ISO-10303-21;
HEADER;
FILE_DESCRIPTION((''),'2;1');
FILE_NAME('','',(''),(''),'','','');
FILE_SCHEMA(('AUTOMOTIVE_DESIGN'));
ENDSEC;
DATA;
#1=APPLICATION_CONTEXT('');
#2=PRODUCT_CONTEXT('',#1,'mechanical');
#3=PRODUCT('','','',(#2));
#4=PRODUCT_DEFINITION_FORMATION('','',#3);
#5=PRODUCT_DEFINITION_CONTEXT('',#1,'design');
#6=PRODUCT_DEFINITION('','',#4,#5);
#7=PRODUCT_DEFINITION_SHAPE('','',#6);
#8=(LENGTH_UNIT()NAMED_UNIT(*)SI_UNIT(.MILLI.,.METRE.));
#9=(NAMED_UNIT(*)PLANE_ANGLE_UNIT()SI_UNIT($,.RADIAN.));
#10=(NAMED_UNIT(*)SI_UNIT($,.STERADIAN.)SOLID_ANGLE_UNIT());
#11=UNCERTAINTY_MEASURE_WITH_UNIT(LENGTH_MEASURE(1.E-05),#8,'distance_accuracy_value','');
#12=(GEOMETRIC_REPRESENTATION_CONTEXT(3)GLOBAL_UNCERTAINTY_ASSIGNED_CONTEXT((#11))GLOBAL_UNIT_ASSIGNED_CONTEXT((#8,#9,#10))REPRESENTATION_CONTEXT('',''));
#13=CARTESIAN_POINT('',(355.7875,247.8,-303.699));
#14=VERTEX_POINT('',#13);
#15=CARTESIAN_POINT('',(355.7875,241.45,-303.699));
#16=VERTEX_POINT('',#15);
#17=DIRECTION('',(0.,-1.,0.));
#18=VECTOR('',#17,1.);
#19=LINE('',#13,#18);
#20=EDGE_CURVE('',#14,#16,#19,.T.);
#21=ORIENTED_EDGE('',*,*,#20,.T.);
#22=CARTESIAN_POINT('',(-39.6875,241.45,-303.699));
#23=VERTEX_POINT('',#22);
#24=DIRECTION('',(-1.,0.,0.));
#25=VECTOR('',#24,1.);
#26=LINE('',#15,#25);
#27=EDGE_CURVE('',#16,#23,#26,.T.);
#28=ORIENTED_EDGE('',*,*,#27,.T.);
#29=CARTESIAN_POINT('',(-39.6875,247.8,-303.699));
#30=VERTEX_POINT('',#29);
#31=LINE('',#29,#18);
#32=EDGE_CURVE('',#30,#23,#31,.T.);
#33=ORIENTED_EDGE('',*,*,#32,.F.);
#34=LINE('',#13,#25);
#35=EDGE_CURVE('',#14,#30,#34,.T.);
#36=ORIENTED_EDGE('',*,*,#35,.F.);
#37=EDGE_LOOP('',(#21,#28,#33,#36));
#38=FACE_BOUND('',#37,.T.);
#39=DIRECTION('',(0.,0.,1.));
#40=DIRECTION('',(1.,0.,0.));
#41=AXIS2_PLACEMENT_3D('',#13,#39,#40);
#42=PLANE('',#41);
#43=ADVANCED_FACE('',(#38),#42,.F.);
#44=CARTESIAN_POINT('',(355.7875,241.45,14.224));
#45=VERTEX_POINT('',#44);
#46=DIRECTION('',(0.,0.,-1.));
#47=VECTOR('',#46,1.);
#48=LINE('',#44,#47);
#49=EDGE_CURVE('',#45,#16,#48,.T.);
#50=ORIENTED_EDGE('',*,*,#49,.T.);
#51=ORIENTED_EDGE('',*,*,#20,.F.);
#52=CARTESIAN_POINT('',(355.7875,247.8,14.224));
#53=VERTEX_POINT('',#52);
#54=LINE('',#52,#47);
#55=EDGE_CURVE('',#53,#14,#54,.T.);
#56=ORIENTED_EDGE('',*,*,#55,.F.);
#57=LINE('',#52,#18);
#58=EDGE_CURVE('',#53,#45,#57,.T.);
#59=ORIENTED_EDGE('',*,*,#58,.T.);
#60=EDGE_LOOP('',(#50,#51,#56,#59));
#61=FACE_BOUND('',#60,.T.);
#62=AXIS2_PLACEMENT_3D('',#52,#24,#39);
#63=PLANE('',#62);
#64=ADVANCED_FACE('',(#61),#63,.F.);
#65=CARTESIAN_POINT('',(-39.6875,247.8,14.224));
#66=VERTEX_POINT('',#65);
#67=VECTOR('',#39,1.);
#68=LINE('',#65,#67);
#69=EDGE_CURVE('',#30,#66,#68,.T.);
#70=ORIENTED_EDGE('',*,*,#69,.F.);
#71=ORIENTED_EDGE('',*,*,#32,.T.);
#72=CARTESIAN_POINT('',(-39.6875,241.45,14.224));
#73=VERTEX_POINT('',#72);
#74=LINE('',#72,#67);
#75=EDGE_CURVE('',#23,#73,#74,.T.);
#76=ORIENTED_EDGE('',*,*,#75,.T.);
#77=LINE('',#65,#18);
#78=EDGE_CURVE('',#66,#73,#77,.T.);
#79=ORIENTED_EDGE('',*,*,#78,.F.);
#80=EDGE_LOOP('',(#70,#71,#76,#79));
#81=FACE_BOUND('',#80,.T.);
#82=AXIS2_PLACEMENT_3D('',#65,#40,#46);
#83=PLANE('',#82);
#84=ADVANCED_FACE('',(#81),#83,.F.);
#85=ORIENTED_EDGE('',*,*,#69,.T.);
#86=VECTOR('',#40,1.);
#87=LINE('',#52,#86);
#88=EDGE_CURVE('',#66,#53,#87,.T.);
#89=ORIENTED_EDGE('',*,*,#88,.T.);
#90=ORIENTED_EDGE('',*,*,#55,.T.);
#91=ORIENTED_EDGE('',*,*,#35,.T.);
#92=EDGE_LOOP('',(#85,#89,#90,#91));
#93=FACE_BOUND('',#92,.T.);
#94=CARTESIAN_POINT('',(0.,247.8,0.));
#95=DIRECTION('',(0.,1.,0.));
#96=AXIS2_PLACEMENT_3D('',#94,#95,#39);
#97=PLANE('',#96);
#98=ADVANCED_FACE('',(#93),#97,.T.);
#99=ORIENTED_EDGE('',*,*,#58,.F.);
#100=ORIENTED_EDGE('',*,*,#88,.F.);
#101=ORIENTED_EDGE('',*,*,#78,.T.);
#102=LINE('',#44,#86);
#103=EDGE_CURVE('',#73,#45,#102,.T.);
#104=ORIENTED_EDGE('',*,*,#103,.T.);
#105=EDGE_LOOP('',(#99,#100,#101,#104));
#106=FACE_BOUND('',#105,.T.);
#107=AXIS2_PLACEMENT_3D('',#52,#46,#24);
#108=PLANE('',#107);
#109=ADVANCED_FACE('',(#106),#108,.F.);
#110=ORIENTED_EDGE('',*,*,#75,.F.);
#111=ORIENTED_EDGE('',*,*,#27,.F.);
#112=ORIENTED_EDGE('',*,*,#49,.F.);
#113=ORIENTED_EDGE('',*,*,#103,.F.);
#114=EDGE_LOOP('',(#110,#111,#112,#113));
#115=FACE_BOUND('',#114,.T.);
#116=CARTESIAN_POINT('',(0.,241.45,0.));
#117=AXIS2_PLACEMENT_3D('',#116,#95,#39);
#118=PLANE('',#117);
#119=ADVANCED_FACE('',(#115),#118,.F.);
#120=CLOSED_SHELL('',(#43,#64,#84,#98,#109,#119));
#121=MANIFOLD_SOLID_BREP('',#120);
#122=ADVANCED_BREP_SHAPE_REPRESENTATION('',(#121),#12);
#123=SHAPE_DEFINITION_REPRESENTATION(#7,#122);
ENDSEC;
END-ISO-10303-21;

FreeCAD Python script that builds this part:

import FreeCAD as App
import Part
import Sketcher

V = App.Vector
Q = App.Units.Quantity

doc = App.newDocument("Part")
params = doc.addObject("Spreadsheet::Sheet", "Params")
for row, (alias, value) in enumerate([
    ("pad1_length", "0.25 in"),
], start=1):
    params.set(f"A{row}", alias)
    params.set(f"B{row}", "=" + value)
    params.setAlias(f"B{row}", alias)

body = doc.addObject("PartDesign::Body", "Body")

sketch1 = body.newObject("Sketcher::SketchObject", "Sketch")
sketch1.AttachmentSupport = (doc.getObject("XZ_Plane"), [""])
sketch1.MapMode = "FlatFace"
sketch1.AttachmentOffset = App.Placement(V(0, 0, -241.45), App.Rotation())
sketch1.addGeometry([
    Part.LineSegment(V(-39.6875, -303.699, 0), V(-39.6875, 14.224, 0)),
    Part.LineSegment(V(-39.6875, 14.224, 0), V(355.7875, 14.224, 0)),
    Part.LineSegment(V(355.7875, 14.224, 0), V(355.7875, -303.699, 0)),
    Part.LineSegment(V(355.7875, -303.699, 0), V(-39.6875, -303.699, 0)),
], False)
sketch1.addConstraint([
    Sketcher.Constraint("Coincident", 0, 2, 1, 1),
    Sketcher.Constraint("Coincident", 1, 2, 2, 1),
    Sketcher.Constraint("Coincident", 2, 2, 3, 1),
    Sketcher.Constraint("Coincident", 3, 2, 0, 1),
    Sketcher.Constraint("Vertical", 0),
    Sketcher.Constraint("Horizontal", 1),
    Sketcher.Constraint("Vertical", 2),
    Sketcher.Constraint("Horizontal", 3),
    Sketcher.Constraint("DistanceY", -1, 1, 0, 2, Q("0.56 in")),
    Sketcher.Constraint("DistanceX", 0, 2, -1, 1, Q("1.5625 in")),
    Sketcher.Constraint("DistanceX", 1, 1, 1, 2, 395.475),
    Sketcher.Constraint("DistanceY", 0, 1, 0, 2, 317.923),
])
pad1 = body.newObject("PartDesign::Pad", "Pad")
pad1.Profile = sketch1
pad1.setExpression("Length", "Params.pad1_length")
pad1.Reversed = True

doc.recompute()
